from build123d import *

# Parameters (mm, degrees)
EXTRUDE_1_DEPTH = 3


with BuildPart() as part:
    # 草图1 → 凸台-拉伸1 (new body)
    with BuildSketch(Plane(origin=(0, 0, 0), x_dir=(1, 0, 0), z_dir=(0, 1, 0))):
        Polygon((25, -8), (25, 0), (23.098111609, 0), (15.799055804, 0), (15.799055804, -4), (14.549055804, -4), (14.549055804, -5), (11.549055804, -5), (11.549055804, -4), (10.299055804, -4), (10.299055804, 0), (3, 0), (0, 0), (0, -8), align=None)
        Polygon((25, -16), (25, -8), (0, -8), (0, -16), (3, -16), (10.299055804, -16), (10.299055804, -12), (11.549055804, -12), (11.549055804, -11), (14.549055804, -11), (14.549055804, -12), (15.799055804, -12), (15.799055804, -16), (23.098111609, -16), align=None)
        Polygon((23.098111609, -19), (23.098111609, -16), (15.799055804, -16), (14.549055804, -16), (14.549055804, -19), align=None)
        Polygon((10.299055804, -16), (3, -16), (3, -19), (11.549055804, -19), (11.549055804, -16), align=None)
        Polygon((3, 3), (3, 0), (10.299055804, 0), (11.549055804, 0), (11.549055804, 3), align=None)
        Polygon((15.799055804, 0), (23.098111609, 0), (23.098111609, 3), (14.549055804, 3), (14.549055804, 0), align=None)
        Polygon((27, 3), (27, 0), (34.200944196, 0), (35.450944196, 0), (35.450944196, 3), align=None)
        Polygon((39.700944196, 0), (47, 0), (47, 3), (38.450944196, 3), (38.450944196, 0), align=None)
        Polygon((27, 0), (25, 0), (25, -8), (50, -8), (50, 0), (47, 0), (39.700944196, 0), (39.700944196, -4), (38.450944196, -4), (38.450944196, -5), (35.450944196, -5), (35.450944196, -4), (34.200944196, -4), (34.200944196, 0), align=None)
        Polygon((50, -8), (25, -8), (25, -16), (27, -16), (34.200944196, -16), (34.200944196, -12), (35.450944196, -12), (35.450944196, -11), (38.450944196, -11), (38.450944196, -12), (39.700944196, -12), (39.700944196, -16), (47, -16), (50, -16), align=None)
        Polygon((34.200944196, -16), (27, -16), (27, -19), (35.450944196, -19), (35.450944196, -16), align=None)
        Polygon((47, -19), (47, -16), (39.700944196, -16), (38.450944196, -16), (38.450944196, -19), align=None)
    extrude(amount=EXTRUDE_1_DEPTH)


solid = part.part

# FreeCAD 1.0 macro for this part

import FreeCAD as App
import Part
import Sketcher
from FreeCAD import Vector

doc = App.newDocument("Part")
params = doc.addObject("Spreadsheet::Sheet", "Params")
for row, (alias, value) in enumerate([
    ("sketch1_width", "3 mm"),
    ("sketch1_height", "4 mm"),
    ("sketch1_height2", "1 mm"),
    ("sketch1_height3", "16 mm"),
    ("sketch1_width2", "1.25 mm"),
    ("pad1_length", "3 mm"),
], start=1):
    params.set(f"A{row}", alias)
    params.set(f"B{row}", "=" + value)
    params.setAlias(f"B{row}", alias)

body = doc.addObject("PartDesign::Body", "Body")

sketch1 = body.newObject("Sketcher::SketchObject", "Sketch")
sketch1.AttachmentSupport = (doc.getObject("XZ_Plane"), [""])
sketch1.MapMode = "FlatFace"
sketch1.addGeometry(Part.LineSegment(Vector(23.1, 0, 0), Vector(23.1, -3, 0)), False)
sketch1.addGeometry(Part.LineSegment(Vector(23.1, -3, 0), Vector(14.5, -3, 0)), False)
sketch1.addGeometry(Part.LineSegment(Vector(14.5, -3, 0), Vector(14.5, 0, 0)), False)
sketch1.addGeometry(Part.LineSegment(Vector(14.5, 0, 0), Vector(15.8, 0, 0)), False)
sketch1.addGeometry(Part.LineSegment(Vector(15.8, 0, 0), Vector(15.8, 4, 0)), False)
sketch1.addGeometry(Part.LineSegment(Vector(15.8, 4, 0), Vector(14.5, 4, 0)), False)
sketch1.addGeometry(Part.LineSegment(Vector(14.5, 4, 0), Vector(14.5, 5, 0)), False)
sketch1.addGeometry(Part.LineSegment(Vector(14.5, 5, 0), Vector(11.5, 5, 0)), False)
sketch1.addGeometry(Part.LineSegment(Vector(11.5, 5, 0), Vector(11.5, 4, 0)), False)
sketch1.addGeometry(Part.LineSegment(Vector(11.5, 4, 0), Vector(10.3, 4, 0)), False)
sketch1.addGeometry(Part.LineSegment(Vector(10.3, 4, 0), Vector(10.3, 0, 0)), False)
sketch1.addGeometry(Part.LineSegment(Vector(10.3, 0, 0), Vector(11.5, 0, 0)), False)
sketch1.addGeometry(Part.LineSegment(Vector(11.5, 0, 0), Vector(11.5, -3, 0)), False)
sketch1.addGeometry(Part.LineSegment(Vector(11.5, -3, 0), Vector(3, -3, 0)), False)
sketch1.addGeometry(Part.LineSegment(Vector(3, -3, 0), Vector(3, 0, 0)), False)
sketch1.addGeometry(Part.LineSegment(Vector(3, 0, 0), Vector(0, 0, 0)), False)
sketch1.addGeometry(Part.LineSegment(Vector(0, 0, 0), Vector(0, 16, 0)), False)
sketch1.addGeometry(Part.LineSegment(Vector(0, 16, 0), Vector(3, 16, 0)), False)
sketch1.addGeometry(Part.LineSegment(Vector(3, 16, 0), Vector(3, 19, 0)), False)
sketch1.addGeometry(Part.LineSegment(Vector(3, 19, 0), Vector(11.5, 19, 0)), False)
sketch1.addGeometry(Part.LineSegment(Vector(11.5, 19, 0), Vector(11.5, 16, 0)), False)
sketch1.addGeometry(Part.LineSegment(Vector(11.5, 16, 0), Vector(10.3, 16, 0)), False)
sketch1.addGeometry(Part.LineSegment(Vector(10.3, 16, 0), Vector(10.3, 12, 0)), False)
sketch1.addGeometry(Part.LineSegment(Vector(10.3, 12, 0), Vector(11.5, 12, 0)), False)
sketch1.addGeometry(Part.LineSegment(Vector(11.5, 12, 0), Vector(11.5, 11, 0)), False)
sketch1.addGeometry(Part.LineSegment(Vector(11.5, 11, 0), Vector(14.5, 11, 0)), False)
sketch1.addGeometry(Part.LineSegment(Vector(14.5, 11, 0), Vector(14.5, 12, 0)), False)
sketch1.addGeometry(Part.LineSegment(Vector(14.5, 12, 0), Vector(15.8, 12, 0)), False)
sketch1.addGeometry(Part.LineSegment(Vector(15.8, 12, 0), Vector(15.8, 16, 0)), False)
sketch1.addGeometry(Part.LineSegment(Vector(15.8, 16, 0), Vector(14.5, 16, 0)), False)
sketch1.addGeometry(Part.LineSegment(Vector(14.5, 16, 0), Vector(14.5, 19, 0)), False)
sketch1.addGeometry(Part.LineSegment(Vector(14.5, 19, 0), Vector(23.1, 19, 0)), False)
sketch1.addGeometry(Part.LineSegment(Vector(23.1, 19, 0), Vector(23.1, 16, 0)), False)
sketch1.addGeometry(Part.LineSegment(Vector(23.1, 16, 0), Vector(27, 16, 0)), False)
sketch1.addGeometry(Part.LineSegment(Vector(27, 16, 0), Vector(27, 19, 0)), False)
sketch1.addGeometry(Part.LineSegment(Vector(27, 19, 0), Vector(35.5, 19, 0)), False)
sketch1.addGeometry(Part.LineSegment(Vector(35.5, 19, 0), Vector(35.5, 16, 0)), False)
sketch1.addGeometry(Part.LineSegment(Vector(35.5, 16, 0), Vector(34.2, 16, 0)), False)
sketch1.addGeometry(Part.LineSegment(Vector(34.2, 16, 0), Vector(34.2, 12, 0)), False)
sketch1.addGeometry(Part.LineSegment(Vector(34.2, 12, 0), Vector(35.5, 12, 0)), False)
sketch1.addGeometry(Part.LineSegment(Vector(35.5, 12, 0), Vector(35.5, 11, 0)), False)
sketch1.addGeometry(Part.LineSegment(Vector(35.5, 11, 0), Vector(38.5, 11, 0)), False)
sketch1.addGeometry(Part.LineSegment(Vector(38.5, 11, 0), Vector(38.5, 12, 0)), False)
sketch1.addGeometry(Part.LineSegment(Vector(38.5, 12, 0), Vector(39.7, 12, 0)), False)
sketch1.addGeometry(Part.LineSegment(Vector(39.7, 12, 0), Vector(39.7, 16, 0)), False)
sketch1.addGeometry(Part.LineSegment(Vector(39.7, 16, 0), Vector(38.5, 16, 0)), False)
sketch1.addGeometry(Part.LineSegment(Vector(38.5, 16, 0), Vector(38.5, 19, 0)), False)
sketch1.addGeometry(Part.LineSegment(Vector(38.5, 19, 0), Vector(47, 19, 0)), False)
sketch1.addGeometry(Part.LineSegment(Vector(47, 19, 0), Vector(47, 16, 0)), False)
sketch1.addGeometry(Part.LineSegment(Vector(47, 16, 0), Vector(50, 16, 0)), False)
sketch1.addGeometry(Part.LineSegment(Vector(50, 16, 0), Vector(50, 0, 0)), False)
sketch1.addGeometry(Part.LineSegment(Vector(50, 0, 0), Vector(47, 0, 0)), False)
sketch1.addGeometry(Part.LineSegment(Vector(47, 0, 0), Vector(47, -3, 0)), False)
sketch1.addGeometry(Part.LineSegment(Vector(47, -3, 0), Vector(38.5, -3, 0)), False)
sketch1.addGeometry(Part.LineSegment(Vector(38.5, -3, 0), Vector(38.5, 0, 0)), False)
sketch1.addGeometry(Part.LineSegment(Vector(38.5, 0, 0), Vector(39.7, 0, 0)), False)
sketch1.addGeometry(Part.LineSegment(Vector(39.7, 0, 0), Vector(39.7, 4, 0)), False)
sketch1.addGeometry(Part.LineSegment(Vector(39.7, 4, 0), Vector(38.5, 4, 0)), False)
sketch1.addGeometry(Part.LineSegment(Vector(38.5, 4, 0), Vector(38.5, 5, 0)), False)
sketch1.addGeometry(Part.LineSegment(Vector(38.5, 5, 0), Vector(35.5, 5, 0)), False)
sketch1.addGeometry(Part.LineSegment(Vector(35.5, 5, 0), Vector(35.5, 4, 0)), False)
sketch1.addGeometry(Part.LineSegment(Vector(35.5, 4, 0), Vector(34.2, 4, 0)), False)
sketch1.addGeometry(Part.LineSegment(Vector(34.2, 4, 0), Vector(34.2, 0, 0)), False)
sketch1.addGeometry(Part.LineSegment(Vector(34.2, 0, 0), Vector(35.5, 0, 0)), False)
sketch1.addGeometry(Part.LineSegment(Vector(35.5, 0, 0), Vector(35.5, -3, 0)), False)
sketch1.addGeometry(Part.LineSegment(Vector(35.5, -3, 0), Vector(27, -3, 0)), False)
sketch1.addGeometry(Part.LineSegment(Vector(27, -3, 0), Vector(27, 0, 0)), False)
sketch1.addGeometry(Part.LineSegment(Vector(27, 0, 0), Vector(23.1, 0, 0)), False)
sketch1.addConstraint(Sketcher.Constraint("Coincident", 0, 2, 1, 1))
sketch1.addConstraint(Sketcher.Constraint("Coincident", 1, 2, 2, 1))
sketch1.addConstraint(Sketcher.Constraint("Coincident", 2, 2, 3, 1))
sketch1.addConstraint(Sketcher.Constraint("Coincident", 3, 2, 4, 1))
sketch1.addConstraint(Sketcher.Constraint("Coincident", 4, 2, 5, 1))
sketch1.addConstraint(Sketcher.Constraint("Coincident", 5, 2, 6, 1))
sketch1.addConstraint(Sketcher.Constraint("Coincident", 6, 2, 7, 1))
sketch1.addConstraint(Sketcher.Constraint("Coincident", 7, 2, 8, 1))
sketch1.addConstraint(Sketcher.Constraint("Coincident", 8, 2, 9, 1))
sketch1.addConstraint(Sketcher.Constraint("Coincident", 9, 2, 10, 1))
sketch1.addConstraint(Sketcher.Constraint("Coincident", 10, 2, 11, 1))
sketch1.addConstraint(Sketcher.Constraint("Coincident", 11, 2, 12, 1))
sketch1.addConstraint(Sketcher.Constraint("Coincident", 12, 2, 13, 1))
sketch1.addConstraint(Sketcher.Constraint("Coincident", 13, 2, 14, 1))
sketch1.addConstraint(Sketcher.Constraint("Coincident", 14, 2, 15, 1))
sketch1.addConstraint(Sketcher.Constraint("Coincident", 15, 2, 16, 1))
sketch1.addConstraint(Sketcher.Constraint("Coincident", 16, 2, 17, 1))
sketch1.addConstraint(Sketcher.Constraint("Coincident", 17, 2, 18, 1))
sketch1.addConstraint(Sketcher.Constraint("Coincident", 18, 2, 19, 1))
sketch1.addConstraint(Sketcher.Constraint("Coincident", 19, 2, 20, 1))
sketch1.addConstraint(Sketcher.Constraint("Coincident", 20, 2, 21, 1))
sketch1.addConstraint(Sketcher.Constraint("Coincident", 21, 2, 22, 1))
sketch1.addConstraint(Sketcher.Constraint("Coincident", 22, 2, 23, 1))
sketch1.addConstraint(Sketcher.Constraint("Coincident", 23, 2, 24, 1))
sketch1.addConstraint(Sketcher.Constraint("Coincident", 24, 2, 25, 1))
sketch1.addConstraint(Sketcher.Constraint("Coincident", 25, 2, 26, 1))
sketch1.addConstraint(Sketcher.Constraint("Coincident", 26, 2, 27, 1))
sketch1.addConstraint(Sketcher.Constraint("Coincident", 27, 2, 28, 1))
sketch1.addConstraint(Sketcher.Constraint("Coincident", 28, 2, 29, 1))
sketch1.addConstraint(Sketcher.Constraint("Coincident", 29, 2, 30, 1))
sketch1.addConstraint(Sketcher.Constraint("Coincident", 30, 2, 31, 1))
sketch1.addConstraint(Sketcher.Constraint("Coincident", 31, 2, 32, 1))
sketch1.addConstraint(Sketcher.Constraint("Coincident", 32, 2, 33, 1))
sketch1.addConstraint(Sketcher.Constraint("Coincident", 33, 2, 34, 1))
sketch1.addConstraint(Sketcher.Constraint("Coincident", 34, 2, 35, 1))
sketch1.addConstraint(Sketcher.Constraint("Coincident", 35, 2, 36, 1))
sketch1.addConstraint(Sketcher.Constraint("Coincident", 36, 2, 37, 1))
sketch1.addConstraint(Sketcher.Constraint("Coincident", 37, 2, 38, 1))
sketch1.addConstraint(Sketcher.Constraint("Coincident", 38, 2, 39, 1))
sketch1.addConstraint(Sketcher.Constraint("Coincident", 39, 2, 40, 1))
sketch1.addConstraint(Sketcher.Constraint("Coincident", 40, 2, 41, 1))
sketch1.addConstraint(Sketcher.Constraint("Coincident", 41, 2, 42, 1))
sketch1.addConstraint(Sketcher.Constraint("Coincident", 42, 2, 43, 1))
sketch1.addConstraint(Sketcher.Constraint("Coincident", 43, 2, 44, 1))
sketch1.addConstraint(Sketcher.Constraint("Coincident", 44, 2, 45, 1))
sketch1.addConstraint(Sketcher.Constraint("Coincident", 45, 2, 46, 1))
sketch1.addConstraint(Sketcher.Constraint("Coincident", 46, 2, 47, 1))
sketch1.addConstraint(Sketcher.Constraint("Coincident", 47, 2, 48, 1))
sketch1.addConstraint(Sketcher.Constraint("Coincident", 48, 2, 49, 1))
sketch1.addConstraint(Sketcher.Constraint("Coincident", 49, 2, 50, 1))
sketch1.addConstraint(Sketcher.Constraint("Coincident", 50, 2, 51, 1))
sketch1.addConstraint(Sketcher.Constraint("Coincident", 51, 2, 52, 1))
sketch1.addConstraint(Sketcher.Constraint("Coincident", 52, 2, 53, 1))
sketch1.addConstraint(Sketcher.Constraint("Coincident", 53, 2, 54, 1))
sketch1.addConstraint(Sketcher.Constraint("Coincident", 54, 2, 55, 1))
sketch1.addConstraint(Sketcher.Constraint("Coincident", 55, 2, 56, 1))
sketch1.addConstraint(Sketcher.Constraint("Coincident", 56, 2, 57, 1))
sketch1.addConstraint(Sketcher.Constraint("Coincident", 57, 2, 58, 1))
sketch1.addConstraint(Sketcher.Constraint("Coincident", 58, 2, 59, 1))
sketch1.addConstraint(Sketcher.Constraint("Coincident", 59, 2, 60, 1))
sketch1.addConstraint(Sketcher.Constraint("Coincident", 60, 2, 61, 1))
sketch1.addConstraint(Sketcher.Constraint("Coincident", 61, 2, 62, 1))
sketch1.addConstraint(Sketcher.Constraint("Coincident", 62, 2, 63, 1))
sketch1.addConstraint(Sketcher.Constraint("Coincident", 63, 2, 64, 1))
sketch1.addConstraint(Sketcher.Constraint("Coincident", 64, 2, 65, 1))
sketch1.addConstraint(Sketcher.Constraint("Coincident", 65, 2, 66, 1))
sketch1.addConstraint(Sketcher.Constraint("Coincident", 66, 2, 67, 1))
sketch1.addConstraint(Sketcher.Constraint("Coincident", 67, 2, 0, 1))
sketch1.addConstraint(Sketcher.Constraint("Vertical", 0))
sketch1.addConstraint(Sketcher.Constraint("Horizontal", 1))
sketch1.addConstraint(Sketcher.Constraint("Vertical", 2))
sketch1.addConstraint(Sketcher.Constraint("Horizontal", 3))
sketch1.addConstraint(Sketcher.Constraint("Vertical", 4))
sketch1.addConstraint(Sketcher.Constraint("Horizontal", 5))
sketch1.addConstraint(Sketcher.Constraint("Vertical", 6))
sketch1.addConstraint(Sketcher.Constraint("Horizontal", 7))
sketch1.addConstraint(Sketcher.Constraint("Vertical", 8))
sketch1.addConstraint(Sketcher.Constraint("Horizontal", 9))
sketch1.addConstraint(Sketcher.Constraint("Vertical", 10))
sketch1.addConstraint(Sketcher.Constraint("Horizontal", 11))
sketch1.addConstraint(Sketcher.Constraint("Vertical", 12))
sketch1.addConstraint(Sketcher.Constraint("Horizontal", 13))
sketch1.addConstraint(Sketcher.Constraint("Vertical", 14))
sketch1.addConstraint(Sketcher.Constraint("Horizontal", 15))
sketch1.addConstraint(Sketcher.Constraint("Vertical", 16))
sketch1.addConstraint(Sketcher.Constraint("Horizontal", 17))
sketch1.addConstraint(Sketcher.Constraint("Vertical", 18))
sketch1.addConstraint(Sketcher.Constraint("Horizontal", 19))
sketch1.addConstraint(Sketcher.Constraint("Vertical", 20))
sketch1.addConstraint(Sketcher.Constraint("Horizontal", 21))
sketch1.addConstraint(Sketcher.Constraint("Vertical", 22))
sketch1.addConstraint(Sketcher.Constraint("Horizontal", 23))
sketch1.addConstraint(Sketcher.Constraint("Vertical", 24))
sketch1.addConstraint(Sketcher.Constraint("Horizontal", 25))
sketch1.addConstraint(Sketcher.Constraint("Vertical", 26))
sketch1.addConstraint(Sketcher.Constraint("Horizontal", 27))
sketch1.addConstraint(Sketcher.Constraint("Vertical", 28))
sketch1.addConstraint(Sketcher.Constraint("Horizontal", 29))
sketch1.addConstraint(Sketcher.Constraint("Vertical", 30))
sketch1.addConstraint(Sketcher.Constraint("Horizontal", 31))
sketch1.addConstraint(Sketcher.Constraint("Vertical", 32))
sketch1.addConstraint(Sketcher.Constraint("Horizontal", 33))
sketch1.addConstraint(Sketcher.Constraint("Vertical", 34))
sketch1.addConstraint(Sketcher.Constraint("Horizontal", 35))
sketch1.addConstraint(Sketcher.Constraint("Vertical", 36))
sketch1.addConstraint(Sketcher.Constraint("Horizontal", 37))
sketch1.addConstraint(Sketcher.Constraint("Vertical", 38))
sketch1.addConstraint(Sketcher.Constraint("Horizontal", 39))
sketch1.addConstraint(Sketcher.Constraint("Vertical", 40))
sketch1.addConstraint(Sketcher.Constraint("Horizontal", 41))
sketch1.addConstraint(Sketcher.Constraint("Vertical", 42))
sketch1.addConstraint(Sketcher.Constraint("Horizontal", 43))
sketch1.addConstraint(Sketcher.Constraint("Vertical", 44))
sketch1.addConstraint(Sketcher.Constraint("Horizontal", 45))
sketch1.addConstraint(Sketcher.Constraint("Vertical", 46))
sketch1.addConstraint(Sketcher.Constraint("Horizontal", 47))
sketch1.addConstraint(Sketcher.Constraint("Vertical", 48))
sketch1.addConstraint(Sketcher.Constraint("Horizontal", 49))
sketch1.addConstraint(Sketcher.Constraint("Vertical", 50))
sketch1.addConstraint(Sketcher.Constraint("Horizontal", 51))
sketch1.addConstraint(Sketcher.Constraint("Vertical", 52))
sketch1.addConstraint(Sketcher.Constraint("Horizontal", 53))
sketch1.addConstraint(Sketcher.Constraint("Vertical", 54))
sketch1.addConstraint(Sketcher.Constraint("Horizontal", 55))
sketch1.addConstraint(Sketcher.Constraint("Vertical", 56))
sketch1.addConstraint(Sketcher.Constraint("Horizontal", 57))
sketch1.addConstraint(Sketcher.Constraint("Vertical", 58))
sketch1.addConstraint(Sketcher.Constraint("Horizontal", 59))
sketch1.addConstraint(Sketcher.Constraint("Vertical", 60))
sketch1.addConstraint(Sketcher.Constraint("Horizontal", 61))
sketch1.addConstraint(Sketcher.Constraint("Vertical", 62))
sketch1.addConstraint(Sketcher.Constraint("Horizontal", 63))
sketch1.addConstraint(Sketcher.Constraint("Vertical", 64))
sketch1.addConstraint(Sketcher.Constraint("Horizontal", 65))
sketch1.addConstraint(Sketcher.Constraint("Vertical", 66))
sketch1.addConstraint(Sketcher.Constraint("Horizontal", 67))
sketch1.addConstraint(Sketcher.Constraint("Coincident", 15, 2, -1, 1))
sketch1.addConstraint(Sketcher.Constraint("PointOnObject", 2, 2, -1))
sketch1.addConstraint(Sketcher.Constraint("PointOnObject", 10, 2, -1))
sketch1.addConstraint(Sketcher.Constraint("PointOnObject", 50, 2, -1))
sketch1.addConstraint(Sketcher.Constraint("PointOnObject", 54, 2, -1))
sketch1.addConstraint(Sketcher.Constraint("PointOnObject", 62, 2, -1))
sketch1.addConstraint(Sketcher.Constraint("PointOnObject", 66, 2, -1))
sketch1.addConstraint(Sketcher.Constraint("Horizontal", 5, 2, 8, 2))
sketch1.addConstraint(Sketcher.Constraint("Horizontal", 1, 2, 12, 2))
sketch1.addConstraint(Sketcher.Constraint("Horizontal", 17, 2, 20, 2))
sketch1.addConstraint(Sketcher.Constraint("Horizontal", 23, 2, 26, 2))
sketch1.addConstraint(Sketcher.Constraint("Horizontal", 21, 2, 28, 2))
sketch1.addConstraint(Sketcher.Constraint("Horizontal", 19, 2, 30, 2))
sketch1.addConstraint(Sketcher.Constraint("Horizontal", 29, 2, 32, 2))
sketch1.addConstraint(Sketcher.Constraint("Horizontal", 31, 2, 34, 2))
sketch1.addConstraint(Sketcher.Constraint("Horizontal", 33, 2, 36, 2))
sketch1.addConstraint(Sketcher.Constraint("Horizontal", 27, 2, 38, 2))
sketch1.addConstraint(Sketcher.Constraint("Horizontal", 25, 2, 40, 2))
sketch1.addConstraint(Sketcher.Constraint("Horizontal", 39, 2, 42, 2))
sketch1.addConstraint(Sketcher.Constraint("Horizontal", 37, 2, 44, 2))
sketch1.addConstraint(Sketcher.Constraint("Horizontal", 35, 2, 46, 2))
sketch1.addConstraint(Sketcher.Constraint("Horizontal", 45, 2, 48, 2))
sketch1.addConstraint(Sketcher.Constraint("Horizontal", 13, 2, 52, 2))
sketch1.addConstraint(Sketcher.Constraint("Horizontal", 9, 2, 56, 2))
sketch1.addConstraint(Sketcher.Constraint("Horizontal", 7, 2, 58, 2))
sketch1.addConstraint(Sketcher.Constraint("Horizontal", 57, 2, 60, 2))
sketch1.addConstraint(Sketcher.Constraint("Horizontal", 53, 2, 64, 2))
sketch1.addConstraint(Sketcher.Constraint("Vertical", 2, 2, 5, 2))
sketch1.addConstraint(Sketcher.Constraint("Vertical", 8, 2, 11, 2))
sketch1.addConstraint(Sketcher.Constraint("Vertical", 14, 2, 17, 2))
sketch1.addConstraint(Sketcher.Constraint("Vertical", 12, 2, 19, 2))
sketch1.addConstraint(Sketcher.Constraint("Vertical", 10, 2, 21, 2))
sketch1.addConstraint(Sketcher.Constraint("Vertical", 20, 2, 23, 2))
sketch1.addConstraint(Sketcher.Constraint("Vertical", 6, 2, 25, 2))
sketch1.addConstraint(Sketcher.Constraint("Vertical", 4, 2, 27, 2))
sketch1.addConstraint(Sketcher.Constraint("Vertical", 26, 2, 29, 2))
sketch1.addConstraint(Sketcher.Constraint("Vertical", 0, 2, 31, 2))
sketch1.addConstraint(Sketcher.Constraint("Vertical", 36, 2, 39, 2))
sketch1.addConstraint(Sketcher.Constraint("Vertical", 42, 2, 45, 2))
sketch1.addConstraint(Sketcher.Constraint("Vertical", 48, 2, 51, 2))
sketch1.addConstraint(Sketcher.Constraint("Vertical", 46, 2, 53, 2))
sketch1.addConstraint(Sketcher.Constraint("Vertical", 44, 2, 55, 2))
sketch1.addConstraint(Sketcher.Constraint("Vertical", 54, 2, 57, 2))
sketch1.addConstraint(Sketcher.Constraint("Vertical", 40, 2, 59, 2))
sketch1.addConstraint(Sketcher.Constraint("Vertical", 38, 2, 61, 2))
sketch1.addConstraint(Sketcher.Constraint("Vertical", 60, 2, 63, 2))
sketch1.addConstraint(Sketcher.Constraint("Vertical", 34, 2, 65, 2))
sketch1.addConstraint(Sketcher.Constraint("Equal", 5, 9))
sketch1.addConstraint(Sketcher.Constraint("Equal", 1, 13))
sketch1.addConstraint(Sketcher.Constraint("Equal", 7, 15))
sketch1.addConstraint(Sketcher.Constraint("Equal", 29, 37))
sketch1.addConstraint(Sketcher.Constraint("Equal", 25, 41))
sketch1.addConstraint(Sketcher.Constraint("Equal", 39, 43))
sketch1.addConstraint(Sketcher.Constraint("Equal", 31, 47))
sketch1.addConstraint(Sketcher.Constraint("Equal", 41, 49))
sketch1.addConstraint(Sketcher.Constraint("Equal", 59, 0))
sketch1.addConstraint(Sketcher.Constraint("Equal", 14, 18))
sketch1.addConstraint(Sketcher.Constraint("Equal", 10, 22))
sketch1.addConstraint(Sketcher.Constraint("Equal", 8, 24))
sketch1.addConstraint(Sketcher.Constraint("DistanceX", 7, 2, 7, 1, 3.0))
sketch1.addConstraint(Sketcher.Constraint("DistanceY", 4, 1, 4, 2, 4.0))
sketch1.addConstraint(Sketcher.Constraint("DistanceY", 6, 1, 6, 2, 1.0))
sketch1.addConstraint(Sketcher.Constraint("DistanceY", 16, 1, 16, 2, 16.0))
sketch1.addConstraint(Sketcher.Constraint("DistanceX", -1, 1, 33, 2, 27.0))
sketch1.addConstraint(Sketcher.Constraint("DistanceX", -1, 1, 47, 2, 47.0))
sketch1.addConstraint(Sketcher.Constraint("DistanceX", 3, 1, 3, 2, 1.25))
sketch1.addConstraint(Sketcher.Constraint("DistanceX", 33, 1, 33, 2, 3.901888))
sketch1.setExpression("Constraints[195]", "Params.sketch1_width")
sketch1.setExpression("Constraints[196]", "Params.sketch1_height")
sketch1.setExpression("Constraints[197]", "Params.sketch1_height2")
sketch1.setExpression("Constraints[198]", "Params.sketch1_height3")
sketch1.setExpression("Constraints[201]", "Params.sketch1_width2")
pad1 = body.newObject("PartDesign::Pad", "Pad")
pad1.Profile = sketch1
pad1.setExpression("Length", "Params.pad1_length")
pad1.Reversed = True

doc.recompute()
